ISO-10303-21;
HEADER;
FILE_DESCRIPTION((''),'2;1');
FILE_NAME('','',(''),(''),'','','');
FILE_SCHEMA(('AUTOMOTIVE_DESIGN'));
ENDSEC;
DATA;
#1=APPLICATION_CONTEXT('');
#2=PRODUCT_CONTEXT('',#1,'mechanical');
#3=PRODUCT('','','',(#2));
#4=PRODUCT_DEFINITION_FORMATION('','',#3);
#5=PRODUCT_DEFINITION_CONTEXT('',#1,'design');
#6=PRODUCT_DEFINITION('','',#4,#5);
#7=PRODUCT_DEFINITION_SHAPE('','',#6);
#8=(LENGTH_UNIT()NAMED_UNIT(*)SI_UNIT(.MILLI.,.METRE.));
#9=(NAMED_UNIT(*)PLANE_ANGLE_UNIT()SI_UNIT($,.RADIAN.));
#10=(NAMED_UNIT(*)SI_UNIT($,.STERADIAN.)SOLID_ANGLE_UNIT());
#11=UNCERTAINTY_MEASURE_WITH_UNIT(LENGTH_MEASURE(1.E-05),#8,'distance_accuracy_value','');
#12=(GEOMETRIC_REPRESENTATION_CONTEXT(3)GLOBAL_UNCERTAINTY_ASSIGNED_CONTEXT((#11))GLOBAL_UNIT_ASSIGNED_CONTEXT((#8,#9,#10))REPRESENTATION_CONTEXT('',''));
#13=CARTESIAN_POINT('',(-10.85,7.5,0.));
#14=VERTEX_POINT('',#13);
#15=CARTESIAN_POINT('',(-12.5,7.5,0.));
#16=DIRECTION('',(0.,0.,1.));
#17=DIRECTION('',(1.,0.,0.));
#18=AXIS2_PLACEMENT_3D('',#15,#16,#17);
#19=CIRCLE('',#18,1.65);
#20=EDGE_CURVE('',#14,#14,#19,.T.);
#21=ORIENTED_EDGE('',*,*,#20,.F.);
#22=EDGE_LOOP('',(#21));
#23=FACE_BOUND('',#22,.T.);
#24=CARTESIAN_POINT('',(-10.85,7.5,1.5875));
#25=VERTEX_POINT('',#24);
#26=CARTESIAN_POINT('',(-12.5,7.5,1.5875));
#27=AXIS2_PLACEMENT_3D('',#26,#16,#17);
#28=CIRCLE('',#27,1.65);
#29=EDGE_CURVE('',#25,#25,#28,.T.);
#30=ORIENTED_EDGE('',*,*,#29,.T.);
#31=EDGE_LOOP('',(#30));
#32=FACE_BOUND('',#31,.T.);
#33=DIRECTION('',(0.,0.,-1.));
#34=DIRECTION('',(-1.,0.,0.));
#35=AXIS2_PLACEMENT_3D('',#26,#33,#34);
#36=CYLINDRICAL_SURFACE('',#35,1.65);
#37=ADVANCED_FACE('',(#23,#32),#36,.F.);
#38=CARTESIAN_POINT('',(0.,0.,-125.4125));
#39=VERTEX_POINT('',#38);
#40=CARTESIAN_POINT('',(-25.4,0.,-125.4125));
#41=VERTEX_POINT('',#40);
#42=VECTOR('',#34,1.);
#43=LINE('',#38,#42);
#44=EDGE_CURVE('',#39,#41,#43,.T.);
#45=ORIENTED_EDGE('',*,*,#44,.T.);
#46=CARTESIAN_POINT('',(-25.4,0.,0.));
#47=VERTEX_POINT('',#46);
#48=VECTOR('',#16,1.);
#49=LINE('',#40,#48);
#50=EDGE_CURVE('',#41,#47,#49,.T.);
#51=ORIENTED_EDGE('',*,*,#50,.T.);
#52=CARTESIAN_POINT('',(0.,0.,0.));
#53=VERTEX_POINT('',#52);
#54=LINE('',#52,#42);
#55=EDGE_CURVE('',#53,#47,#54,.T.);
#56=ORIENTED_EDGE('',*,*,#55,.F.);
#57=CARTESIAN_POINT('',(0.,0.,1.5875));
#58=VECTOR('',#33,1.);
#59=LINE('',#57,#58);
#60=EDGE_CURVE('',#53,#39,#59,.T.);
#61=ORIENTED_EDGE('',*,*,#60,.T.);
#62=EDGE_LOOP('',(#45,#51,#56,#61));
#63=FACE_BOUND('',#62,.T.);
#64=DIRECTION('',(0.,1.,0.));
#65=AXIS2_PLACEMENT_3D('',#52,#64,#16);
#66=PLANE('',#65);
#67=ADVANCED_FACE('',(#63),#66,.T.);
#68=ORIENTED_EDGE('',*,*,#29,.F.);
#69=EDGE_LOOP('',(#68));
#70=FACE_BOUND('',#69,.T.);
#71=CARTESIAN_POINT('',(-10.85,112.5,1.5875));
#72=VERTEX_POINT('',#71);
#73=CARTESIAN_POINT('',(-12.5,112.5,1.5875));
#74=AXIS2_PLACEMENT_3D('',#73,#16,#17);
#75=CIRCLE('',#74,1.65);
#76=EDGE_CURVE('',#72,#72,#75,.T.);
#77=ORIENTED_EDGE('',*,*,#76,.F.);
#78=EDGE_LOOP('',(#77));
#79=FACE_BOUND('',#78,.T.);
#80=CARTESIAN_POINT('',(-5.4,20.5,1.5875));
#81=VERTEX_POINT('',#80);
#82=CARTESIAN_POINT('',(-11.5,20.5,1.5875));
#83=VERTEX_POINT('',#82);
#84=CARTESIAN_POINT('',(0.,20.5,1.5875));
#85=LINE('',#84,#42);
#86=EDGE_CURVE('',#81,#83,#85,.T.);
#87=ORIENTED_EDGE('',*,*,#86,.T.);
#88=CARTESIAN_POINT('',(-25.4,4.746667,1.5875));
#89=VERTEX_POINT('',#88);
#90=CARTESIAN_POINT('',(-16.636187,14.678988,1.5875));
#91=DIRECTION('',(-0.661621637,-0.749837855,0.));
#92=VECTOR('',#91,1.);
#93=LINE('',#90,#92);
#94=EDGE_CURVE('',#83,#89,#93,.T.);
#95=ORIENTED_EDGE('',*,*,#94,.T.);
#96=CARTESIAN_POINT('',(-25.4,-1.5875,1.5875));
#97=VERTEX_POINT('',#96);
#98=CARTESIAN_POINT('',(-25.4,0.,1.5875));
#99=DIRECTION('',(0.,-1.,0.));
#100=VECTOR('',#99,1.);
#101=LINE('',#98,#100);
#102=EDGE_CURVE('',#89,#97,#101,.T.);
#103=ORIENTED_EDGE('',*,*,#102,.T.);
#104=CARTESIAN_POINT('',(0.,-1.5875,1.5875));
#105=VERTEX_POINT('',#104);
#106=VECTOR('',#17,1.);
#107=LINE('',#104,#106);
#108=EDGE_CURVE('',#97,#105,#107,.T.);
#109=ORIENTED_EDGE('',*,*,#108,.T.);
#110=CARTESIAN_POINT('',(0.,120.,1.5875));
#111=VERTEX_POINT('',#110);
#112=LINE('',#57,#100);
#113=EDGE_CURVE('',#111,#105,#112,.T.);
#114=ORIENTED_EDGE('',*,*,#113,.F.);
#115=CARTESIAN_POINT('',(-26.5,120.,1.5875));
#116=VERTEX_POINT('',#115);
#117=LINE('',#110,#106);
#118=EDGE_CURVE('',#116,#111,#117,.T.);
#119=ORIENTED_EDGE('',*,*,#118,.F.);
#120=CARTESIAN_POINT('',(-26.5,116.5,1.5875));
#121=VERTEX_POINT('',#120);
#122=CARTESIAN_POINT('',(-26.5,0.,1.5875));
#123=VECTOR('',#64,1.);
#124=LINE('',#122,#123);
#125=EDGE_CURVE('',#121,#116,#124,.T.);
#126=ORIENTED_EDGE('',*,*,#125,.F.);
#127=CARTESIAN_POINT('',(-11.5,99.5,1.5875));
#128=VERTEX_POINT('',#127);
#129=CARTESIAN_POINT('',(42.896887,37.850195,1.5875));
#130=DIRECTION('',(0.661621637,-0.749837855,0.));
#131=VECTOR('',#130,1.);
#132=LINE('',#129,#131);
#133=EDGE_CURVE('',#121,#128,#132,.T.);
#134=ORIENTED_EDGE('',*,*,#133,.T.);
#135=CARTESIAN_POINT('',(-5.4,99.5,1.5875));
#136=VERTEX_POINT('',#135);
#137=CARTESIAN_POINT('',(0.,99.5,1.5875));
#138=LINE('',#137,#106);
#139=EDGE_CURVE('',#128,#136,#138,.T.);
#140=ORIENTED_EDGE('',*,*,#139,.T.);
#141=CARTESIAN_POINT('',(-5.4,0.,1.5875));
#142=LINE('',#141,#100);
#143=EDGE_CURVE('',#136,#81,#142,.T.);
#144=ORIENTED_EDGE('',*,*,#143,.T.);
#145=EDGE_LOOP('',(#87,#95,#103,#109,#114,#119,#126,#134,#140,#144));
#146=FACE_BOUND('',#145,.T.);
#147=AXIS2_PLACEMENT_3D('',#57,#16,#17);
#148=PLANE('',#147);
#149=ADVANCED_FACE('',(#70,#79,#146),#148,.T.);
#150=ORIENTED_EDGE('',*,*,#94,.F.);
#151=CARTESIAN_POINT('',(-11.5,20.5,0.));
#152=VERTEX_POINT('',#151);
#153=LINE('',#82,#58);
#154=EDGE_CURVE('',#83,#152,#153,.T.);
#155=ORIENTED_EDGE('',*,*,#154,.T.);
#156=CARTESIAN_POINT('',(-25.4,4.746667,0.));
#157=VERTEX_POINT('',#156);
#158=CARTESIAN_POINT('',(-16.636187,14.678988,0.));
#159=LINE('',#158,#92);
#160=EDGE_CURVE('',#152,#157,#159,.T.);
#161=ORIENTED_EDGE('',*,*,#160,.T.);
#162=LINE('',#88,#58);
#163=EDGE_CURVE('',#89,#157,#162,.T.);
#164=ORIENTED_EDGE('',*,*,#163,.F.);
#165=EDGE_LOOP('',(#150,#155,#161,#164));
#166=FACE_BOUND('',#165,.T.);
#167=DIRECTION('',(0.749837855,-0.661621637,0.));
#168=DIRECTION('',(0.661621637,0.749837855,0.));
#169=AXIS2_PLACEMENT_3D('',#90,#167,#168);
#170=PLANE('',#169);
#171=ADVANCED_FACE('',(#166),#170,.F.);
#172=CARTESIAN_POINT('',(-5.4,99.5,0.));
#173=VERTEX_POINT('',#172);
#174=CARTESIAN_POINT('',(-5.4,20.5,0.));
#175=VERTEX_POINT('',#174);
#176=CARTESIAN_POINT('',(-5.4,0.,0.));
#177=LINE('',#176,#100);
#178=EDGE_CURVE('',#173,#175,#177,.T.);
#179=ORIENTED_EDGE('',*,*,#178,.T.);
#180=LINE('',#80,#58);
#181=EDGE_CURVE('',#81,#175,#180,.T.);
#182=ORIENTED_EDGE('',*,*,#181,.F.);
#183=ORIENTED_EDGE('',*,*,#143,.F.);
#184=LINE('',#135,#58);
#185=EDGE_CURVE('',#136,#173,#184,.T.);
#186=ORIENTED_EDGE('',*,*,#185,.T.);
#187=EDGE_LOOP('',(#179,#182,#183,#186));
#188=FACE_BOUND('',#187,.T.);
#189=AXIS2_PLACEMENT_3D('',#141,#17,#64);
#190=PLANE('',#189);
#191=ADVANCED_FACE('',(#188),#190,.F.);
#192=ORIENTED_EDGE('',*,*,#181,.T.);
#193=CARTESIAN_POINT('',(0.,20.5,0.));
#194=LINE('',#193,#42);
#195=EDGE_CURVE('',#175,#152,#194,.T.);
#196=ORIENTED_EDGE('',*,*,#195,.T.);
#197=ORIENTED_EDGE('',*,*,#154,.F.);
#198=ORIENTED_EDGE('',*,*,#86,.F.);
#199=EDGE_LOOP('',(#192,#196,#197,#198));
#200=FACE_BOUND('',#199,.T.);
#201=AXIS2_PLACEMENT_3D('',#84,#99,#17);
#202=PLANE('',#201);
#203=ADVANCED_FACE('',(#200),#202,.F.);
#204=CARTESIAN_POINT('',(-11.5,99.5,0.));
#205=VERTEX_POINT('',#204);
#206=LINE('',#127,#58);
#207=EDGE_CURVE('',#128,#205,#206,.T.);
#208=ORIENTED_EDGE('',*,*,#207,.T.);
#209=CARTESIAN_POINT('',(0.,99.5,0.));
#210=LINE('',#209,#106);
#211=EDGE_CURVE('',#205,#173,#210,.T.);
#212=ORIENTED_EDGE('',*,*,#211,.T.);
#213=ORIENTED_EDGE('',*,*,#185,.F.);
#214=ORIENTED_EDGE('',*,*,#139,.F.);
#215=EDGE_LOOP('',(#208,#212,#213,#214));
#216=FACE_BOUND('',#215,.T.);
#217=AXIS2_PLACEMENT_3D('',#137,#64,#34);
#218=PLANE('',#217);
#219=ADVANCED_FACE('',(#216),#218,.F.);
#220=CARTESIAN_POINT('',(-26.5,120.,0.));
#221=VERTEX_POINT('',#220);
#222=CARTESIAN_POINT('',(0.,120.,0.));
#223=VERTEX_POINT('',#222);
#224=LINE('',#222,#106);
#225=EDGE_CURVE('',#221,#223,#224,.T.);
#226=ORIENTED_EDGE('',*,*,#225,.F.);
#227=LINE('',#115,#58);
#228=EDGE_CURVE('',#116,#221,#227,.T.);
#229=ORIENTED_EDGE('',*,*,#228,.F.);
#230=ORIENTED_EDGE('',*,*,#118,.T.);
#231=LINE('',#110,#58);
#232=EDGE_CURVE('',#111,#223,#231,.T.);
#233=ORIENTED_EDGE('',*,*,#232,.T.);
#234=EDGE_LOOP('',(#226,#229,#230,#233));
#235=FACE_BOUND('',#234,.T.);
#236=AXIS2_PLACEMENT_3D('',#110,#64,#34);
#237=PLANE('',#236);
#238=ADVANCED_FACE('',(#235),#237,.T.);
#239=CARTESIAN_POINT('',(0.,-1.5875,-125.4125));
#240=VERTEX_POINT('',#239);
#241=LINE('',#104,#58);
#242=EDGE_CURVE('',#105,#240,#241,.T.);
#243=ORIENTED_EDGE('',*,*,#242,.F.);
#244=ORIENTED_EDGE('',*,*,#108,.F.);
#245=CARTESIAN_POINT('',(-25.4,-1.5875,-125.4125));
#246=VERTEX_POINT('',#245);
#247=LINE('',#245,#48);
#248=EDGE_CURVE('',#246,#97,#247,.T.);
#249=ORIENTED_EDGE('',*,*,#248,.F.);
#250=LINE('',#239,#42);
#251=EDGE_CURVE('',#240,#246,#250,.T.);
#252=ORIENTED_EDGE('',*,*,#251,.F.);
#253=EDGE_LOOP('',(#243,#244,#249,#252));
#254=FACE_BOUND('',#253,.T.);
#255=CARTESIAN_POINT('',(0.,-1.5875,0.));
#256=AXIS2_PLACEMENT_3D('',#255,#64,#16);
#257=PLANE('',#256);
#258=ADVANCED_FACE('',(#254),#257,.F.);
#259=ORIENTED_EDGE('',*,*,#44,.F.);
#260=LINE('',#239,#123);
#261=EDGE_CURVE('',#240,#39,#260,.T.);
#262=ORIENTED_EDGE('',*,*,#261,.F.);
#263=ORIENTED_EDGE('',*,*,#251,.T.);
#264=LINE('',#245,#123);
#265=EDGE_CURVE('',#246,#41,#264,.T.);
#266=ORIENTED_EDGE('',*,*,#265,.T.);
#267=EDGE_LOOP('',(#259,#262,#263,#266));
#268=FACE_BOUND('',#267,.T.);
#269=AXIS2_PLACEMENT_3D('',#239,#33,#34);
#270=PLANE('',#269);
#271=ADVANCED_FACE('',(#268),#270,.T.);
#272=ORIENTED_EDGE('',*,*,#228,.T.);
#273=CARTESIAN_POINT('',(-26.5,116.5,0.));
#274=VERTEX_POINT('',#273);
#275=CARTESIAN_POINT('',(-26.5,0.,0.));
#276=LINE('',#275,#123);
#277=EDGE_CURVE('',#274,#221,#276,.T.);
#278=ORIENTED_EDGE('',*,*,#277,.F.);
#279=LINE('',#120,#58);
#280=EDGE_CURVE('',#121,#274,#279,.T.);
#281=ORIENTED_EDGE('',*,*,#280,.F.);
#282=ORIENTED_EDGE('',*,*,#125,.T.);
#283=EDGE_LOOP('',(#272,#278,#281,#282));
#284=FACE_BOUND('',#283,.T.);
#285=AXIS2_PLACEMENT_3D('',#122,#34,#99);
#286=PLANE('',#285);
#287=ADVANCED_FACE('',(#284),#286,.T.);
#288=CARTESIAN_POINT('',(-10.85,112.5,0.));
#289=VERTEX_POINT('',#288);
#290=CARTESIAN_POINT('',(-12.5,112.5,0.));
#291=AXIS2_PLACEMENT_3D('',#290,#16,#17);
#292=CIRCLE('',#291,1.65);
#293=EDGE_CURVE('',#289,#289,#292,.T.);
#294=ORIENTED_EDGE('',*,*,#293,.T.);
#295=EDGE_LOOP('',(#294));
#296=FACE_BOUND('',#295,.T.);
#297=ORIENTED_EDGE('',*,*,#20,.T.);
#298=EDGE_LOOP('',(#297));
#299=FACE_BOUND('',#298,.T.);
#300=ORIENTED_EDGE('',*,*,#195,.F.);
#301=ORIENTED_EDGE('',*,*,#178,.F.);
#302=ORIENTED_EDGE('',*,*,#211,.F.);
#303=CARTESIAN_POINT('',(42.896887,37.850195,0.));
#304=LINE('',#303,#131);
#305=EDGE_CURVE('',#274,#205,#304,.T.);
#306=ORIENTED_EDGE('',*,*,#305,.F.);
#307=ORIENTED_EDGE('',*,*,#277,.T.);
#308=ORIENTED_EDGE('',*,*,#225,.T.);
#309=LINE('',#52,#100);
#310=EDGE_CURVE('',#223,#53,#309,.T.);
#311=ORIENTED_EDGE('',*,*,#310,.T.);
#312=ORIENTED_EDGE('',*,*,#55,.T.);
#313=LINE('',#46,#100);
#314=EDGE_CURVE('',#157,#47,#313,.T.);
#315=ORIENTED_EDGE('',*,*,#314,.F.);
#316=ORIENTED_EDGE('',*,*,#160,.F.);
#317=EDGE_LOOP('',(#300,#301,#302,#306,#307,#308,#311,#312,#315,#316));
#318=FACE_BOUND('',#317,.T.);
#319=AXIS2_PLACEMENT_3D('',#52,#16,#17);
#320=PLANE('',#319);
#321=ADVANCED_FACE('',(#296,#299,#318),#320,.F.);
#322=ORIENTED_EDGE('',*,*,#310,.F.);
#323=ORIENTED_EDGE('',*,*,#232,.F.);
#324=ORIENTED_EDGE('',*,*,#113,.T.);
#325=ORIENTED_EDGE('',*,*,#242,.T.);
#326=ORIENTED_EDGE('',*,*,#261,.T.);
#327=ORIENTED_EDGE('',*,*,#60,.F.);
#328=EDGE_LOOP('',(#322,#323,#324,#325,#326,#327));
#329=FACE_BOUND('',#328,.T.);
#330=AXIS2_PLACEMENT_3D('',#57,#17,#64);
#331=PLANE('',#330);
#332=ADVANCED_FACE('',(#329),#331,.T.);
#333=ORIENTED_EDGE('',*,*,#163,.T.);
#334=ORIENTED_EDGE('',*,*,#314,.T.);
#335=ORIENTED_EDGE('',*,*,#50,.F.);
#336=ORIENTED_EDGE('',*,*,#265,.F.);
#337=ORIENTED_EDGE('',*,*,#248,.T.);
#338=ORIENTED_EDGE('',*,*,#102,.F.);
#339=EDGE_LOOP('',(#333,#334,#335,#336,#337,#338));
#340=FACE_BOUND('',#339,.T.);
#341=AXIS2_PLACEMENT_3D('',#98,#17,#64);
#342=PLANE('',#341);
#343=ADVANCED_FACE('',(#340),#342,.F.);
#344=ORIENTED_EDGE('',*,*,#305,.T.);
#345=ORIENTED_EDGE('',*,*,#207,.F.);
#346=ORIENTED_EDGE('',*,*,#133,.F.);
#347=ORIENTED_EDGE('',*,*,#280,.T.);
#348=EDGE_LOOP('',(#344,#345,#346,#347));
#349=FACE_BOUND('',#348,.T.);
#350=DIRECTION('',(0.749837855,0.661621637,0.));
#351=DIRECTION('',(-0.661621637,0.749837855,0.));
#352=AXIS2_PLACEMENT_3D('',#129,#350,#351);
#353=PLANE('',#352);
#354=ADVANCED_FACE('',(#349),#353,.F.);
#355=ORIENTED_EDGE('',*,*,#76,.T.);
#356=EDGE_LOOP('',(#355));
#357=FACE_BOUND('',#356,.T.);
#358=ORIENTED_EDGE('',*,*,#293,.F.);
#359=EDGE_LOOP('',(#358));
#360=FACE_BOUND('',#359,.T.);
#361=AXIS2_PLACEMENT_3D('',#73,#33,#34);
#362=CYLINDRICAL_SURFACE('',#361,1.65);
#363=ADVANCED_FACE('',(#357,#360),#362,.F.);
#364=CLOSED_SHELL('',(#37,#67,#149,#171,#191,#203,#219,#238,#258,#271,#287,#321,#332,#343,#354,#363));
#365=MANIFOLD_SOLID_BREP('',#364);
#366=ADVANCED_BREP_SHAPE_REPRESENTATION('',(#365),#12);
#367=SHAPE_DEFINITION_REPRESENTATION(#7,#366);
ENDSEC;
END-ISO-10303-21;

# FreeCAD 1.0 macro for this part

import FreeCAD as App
import Part
import Sketcher
Q = App.Units.Quantity


def add_polygon(sketch, points):
    """Adds a closed chain of lines whose ends are joined by coincident constraints."""
    first, n = sketch.GeometryCount, len(points)
    for a, b in zip(points, points[1:] + points[:1]):
        sketch.addGeometry(Part.LineSegment(App.Vector(*a, 0), App.Vector(*b, 0)), False)
    for i in range(n):
        sketch.addConstraint(Sketcher.Constraint("Coincident", first + i, 2, first + (i + 1) % n, 1))

doc = App.newDocument("Part")
body = doc.addObject("PartDesign::Body", "Body")

# Sketch on XY plane
sketch1 = doc.addObject("Sketcher::SketchObject", "Sketch")
body.addObject(sketch1)
sketch1.AttachmentSupport = (doc.XY_Plane, [""])
sketch1.MapMode = "FlatFace"
add_polygon(sketch1, [(0, 120), (-26.5, 120), (-26.5, 116.5), (-11.5, 99.5), (-5.4, 99.5), (-5.4, 20.5), (-11.5, 20.5), (-25.4, 4.746667), (-25.4, 0), (0, 0)])  # lines 0-9
sketch1.addGeometry(Part.Circle(App.Vector(-12.5, 7.5, 0), App.Vector(0, 0, 1), 1.65), False)  # 10
sketch1.addGeometry(Part.Circle(App.Vector(-12.5, 112.5, 0), App.Vector(0, 0, 1), 1.65), False)  # 11
sketch1.addConstraint(Sketcher.Constraint("Horizontal", 0))
sketch1.addConstraint(Sketcher.Constraint("Vertical", 1))
sketch1.addConstraint(Sketcher.Constraint("Horizontal", 3))
sketch1.addConstraint(Sketcher.Constraint("Vertical", 4))
sketch1.addConstraint(Sketcher.Constraint("Horizontal", 5))
sketch1.addConstraint(Sketcher.Constraint("Vertical", 7))
sketch1.addConstraint(Sketcher.Constraint("Horizontal", 8))
sketch1.addConstraint(Sketcher.Constraint("Vertical", 9))
sketch1.addConstraint(Sketcher.Constraint("Coincident", 8, 2, -1, 1))
sketch1.addConstraint(Sketcher.Constraint("Equal", 10, 11))
sketch1.addConstraint(Sketcher.Constraint("Vertical", 10, 3, 11, 3))
sketch1.addConstraint(Sketcher.Constraint("Vertical", 2, 2, 5, 2))
sketch1.addConstraint(Sketcher.Constraint("Diameter", 10, Q("3.3 mm")))
sketch1.addConstraint(Sketcher.Constraint("DistanceY", 4, 2, 4, 1, Q("79 mm")))
sketch1.addConstraint(Sketcher.Constraint("DistanceY", 9, 1, 9, 2, Q("120 mm")))
sketch1.addConstraint(Sketcher.Constraint("DistanceX", 0, 2, 0, 1, Q("26.5 mm")))
sketch1.addConstraint(Sketcher.Constraint("DistanceX", 3, 1, 3, 2, Q("6.1 mm")))
sketch1.addConstraint(Sketcher.Constraint("DistanceX", 8, 1, 8, 2, Q("25.4 mm")))
sketch1.addConstraint(Sketcher.Constraint("DistanceY", 1, 2, 1, 1, Q("3.5 mm")))
sketch1.addConstraint(Sketcher.Constraint("DistanceY", 10, 3, 11, 3, Q("105 mm")))
sketch1.addConstraint(Sketcher.Constraint("DistanceX", 0, 2, 11, 3, Q("14 mm")))
sketch1.addConstraint(Sketcher.Constraint("DistanceY", 11, 3, 1, 2, Q("4 mm")))
sketch1.addConstraint(Sketcher.Constraint("DistanceX", 11, 3, 2, 2, Q("1 mm")))
sketch1.addConstraint(Sketcher.Constraint("DistanceY", 2, 2, 11, 3, Q("13 mm")))
sketch1.addConstraint(Sketcher.Constraint("DistanceY", 7, 2, 7, 1, Q("4.746667 mm")))
pad1 = doc.addObject("PartDesign::Pad", "Pad")
body.addObject(pad1)
pad1.Profile = sketch1
pad1.Length = 1.5875

# Sketch on XZ plane
sketch2 = doc.addObject("Sketcher::SketchObject", "Sketch001")
body.addObject(sketch2)
sketch2.AttachmentSupport = (doc.XZ_Plane, [""])
sketch2.MapMode = "FlatFace"
add_polygon(sketch2, [(-25.4, -125.4125), (-25.4, 1.5875), (0, 1.5875), (0, -125.4125)])  # lines 0-3
sketch2.addConstraint(Sketcher.Constraint("Vertical", 0))
sketch2.addConstraint(Sketcher.Constraint("Horizontal", 1))
sketch2.addConstraint(Sketcher.Constraint("Vertical", 2))
sketch2.addConstraint(Sketcher.Constraint("Horizontal", 3))
sketch2.addConstraint(Sketcher.Constraint("PointOnObject", 1, 2, -2))
sketch2.addConstraint(Sketcher.Constraint("DistanceY", 0, 1, 0, 2, Q("127 mm")))
sketch2.addConstraint(Sketcher.Constraint("DistanceX", 1, 1, 1, 2, Q("25.4 mm")))
sketch2.addConstraint(Sketcher.Constraint("DistanceY", -1, 1, 0, 2, Q("1.5875 mm")))
pad2 = doc.addObject("PartDesign::Pad", "Pad001")
body.addObject(pad2)
pad2.Profile = sketch2
pad2.Length = 1.5875

doc.recompute()
